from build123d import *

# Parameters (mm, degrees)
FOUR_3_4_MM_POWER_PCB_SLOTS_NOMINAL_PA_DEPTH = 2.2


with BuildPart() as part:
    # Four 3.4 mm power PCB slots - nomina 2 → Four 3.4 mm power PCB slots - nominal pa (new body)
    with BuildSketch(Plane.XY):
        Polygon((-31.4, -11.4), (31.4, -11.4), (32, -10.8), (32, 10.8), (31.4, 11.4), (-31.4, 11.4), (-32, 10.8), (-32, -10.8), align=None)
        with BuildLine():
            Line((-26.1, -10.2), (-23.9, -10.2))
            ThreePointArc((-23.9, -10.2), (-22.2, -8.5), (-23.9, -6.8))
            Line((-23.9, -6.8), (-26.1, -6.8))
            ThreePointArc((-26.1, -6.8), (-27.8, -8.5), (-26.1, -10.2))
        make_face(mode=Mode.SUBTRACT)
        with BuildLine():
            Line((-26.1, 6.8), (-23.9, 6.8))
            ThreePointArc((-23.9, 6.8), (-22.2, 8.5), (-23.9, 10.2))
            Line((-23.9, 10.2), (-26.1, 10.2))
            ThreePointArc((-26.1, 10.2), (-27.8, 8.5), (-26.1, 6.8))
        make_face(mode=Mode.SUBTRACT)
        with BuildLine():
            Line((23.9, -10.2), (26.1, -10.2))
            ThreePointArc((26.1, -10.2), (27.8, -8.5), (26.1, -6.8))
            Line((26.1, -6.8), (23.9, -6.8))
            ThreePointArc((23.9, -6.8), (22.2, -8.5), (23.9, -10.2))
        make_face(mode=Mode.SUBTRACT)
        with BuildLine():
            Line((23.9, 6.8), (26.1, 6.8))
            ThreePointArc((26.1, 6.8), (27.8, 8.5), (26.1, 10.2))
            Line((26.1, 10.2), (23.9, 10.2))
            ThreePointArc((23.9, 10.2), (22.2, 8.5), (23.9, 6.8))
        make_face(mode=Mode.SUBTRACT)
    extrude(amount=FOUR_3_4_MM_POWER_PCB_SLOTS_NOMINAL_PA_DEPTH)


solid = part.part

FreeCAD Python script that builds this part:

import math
import FreeCAD as App
import Part
import Sketcher

V = App.Vector


def add_polygon(sketch, points):
    """Adds a closed chain of lines whose ends are joined by coincident constraints."""
    first, n = sketch.GeometryCount, len(points)
    for a, b in zip(points, points[1:] + points[:1]):
        sketch.addGeometry(Part.LineSegment(App.Vector(*a, 0), App.Vector(*b, 0)), False)
    for i in range(n):
        sketch.addConstraint(Sketcher.Constraint("Coincident", first + i, 2, first + (i + 1) % n, 1))

doc = App.newDocument("Part")
body = doc.addObject("PartDesign::Body", "Body")

sketch1 = body.newObject("Sketcher::SketchObject", "Sketch")
sketch1.AttachmentSupport = (doc.getObject("XY_Plane"), [""])
sketch1.MapMode = "FlatFace"
add_polygon(sketch1, [(-31.4, -11.4), (31.4, -11.4), (32, -10.8), (32, 10.8), (31.4, 11.4), (-31.4, 11.4), (-32, 10.8), (-32, -10.8)])
sketch1.addGeometry(Part.LineSegment(V(-23.9, -10.2, 0), V(-26.1, -10.2, 0)), False)
sketch1.addGeometry(Part.ArcOfCircle(Part.Circle(V(-26.1, -8.5, 0), V(0, 0, 1), 1.7), math.radians(90), math.radians(270)), False)
sketch1.addGeometry(Part.LineSegment(V(-26.1, -6.8, 0), V(-23.9, -6.8, 0)), False)
sketch1.addGeometry(Part.ArcOfCircle(Part.Circle(V(-23.9, -8.5, 0), V(0, 0, 1), 1.7), math.radians(-90), math.radians(90)), False)
sketch1.addGeometry(Part.LineSegment(V(26.1, -10.2, 0), V(23.9, -10.2, 0)), False)
sketch1.addGeometry(Part.ArcOfCircle(Part.Circle(V(23.9, -8.5, 0), V(0, 0, 1), 1.7), math.radians(90), math.radians(270)), False)
sketch1.addGeometry(Part.LineSegment(V(23.9, -6.8, 0), V(26.1, -6.8, 0)), False)
sketch1.addGeometry(Part.ArcOfCircle(Part.Circle(V(26.1, -8.5, 0), V(0, 0, 1), 1.7), math.radians(-90), math.radians(90)), False)
sketch1.addGeometry(Part.LineSegment(V(-23.9, 6.8, 0), V(-26.1, 6.8, 0)), False)
sketch1.addGeometry(Part.ArcOfCircle(Part.Circle(V(-26.1, 8.5, 0), V(0, 0, 1), 1.7), math.radians(90), math.radians(270)), False)
sketch1.addGeometry(Part.LineSegment(V(-26.1, 10.2, 0), V(-23.9, 10.2, 0)), False)
sketch1.addGeometry(Part.ArcOfCircle(Part.Circle(V(-23.9, 8.5, 0), V(0, 0, 1), 1.7), math.radians(-90), math.radians(90)), False)
sketch1.addGeometry(Part.LineSegment(V(26.1, 6.8, 0), V(23.9, 6.8, 0)), False)
sketch1.addGeometry(Part.ArcOfCircle(Part.Circle(V(23.9, 8.5, 0), V(0, 0, 1), 1.7), math.radians(90), math.radians(270)), False)
sketch1.addGeometry(Part.LineSegment(V(23.9, 10.2, 0), V(26.1, 10.2, 0)), False)
sketch1.addGeometry(Part.ArcOfCircle(Part.Circle(V(26.1, 8.5, 0), V(0, 0, 1), 1.7), math.radians(-90), math.radians(90)), False)
sketch1.addConstraint(Sketcher.Constraint("Tangent", 8, 2, 9, 2))
sketch1.addConstraint(Sketcher.Constraint("Tangent", 9, 1, 10, 1))
sketch1.addConstraint(Sketcher.Constraint("Tangent", 10, 2, 11, 2))
sketch1.addConstraint(Sketcher.Constraint("Tangent", 11, 1, 8, 1))
sketch1.addConstraint(Sketcher.Constraint("Tangent", 12, 2, 13, 2))
sketch1.addConstraint(Sketcher.Constraint("Tangent", 13, 1, 14, 1))
sketch1.addConstraint(Sketcher.Constraint("Tangent", 14, 2, 15, 2))
sketch1.addConstraint(Sketcher.Constraint("Tangent", 15, 1, 12, 1))
sketch1.addConstraint(Sketcher.Constraint("Tangent", 16, 2, 17, 2))
sketch1.addConstraint(Sketcher.Constraint("Tangent", 17, 1, 18, 1))
sketch1.addConstraint(Sketcher.Constraint("Tangent", 18, 2, 19, 2))
sketch1.addConstraint(Sketcher.Constraint("Tangent", 19, 1, 16, 1))
sketch1.addConstraint(Sketcher.Constraint("Tangent", 20, 2, 21, 2))
sketch1.addConstraint(Sketcher.Constraint("Tangent", 21, 1, 22, 1))
sketch1.addConstraint(Sketcher.Constraint("Tangent", 22, 2, 23, 2))
sketch1.addConstraint(Sketcher.Constraint("Tangent", 23, 1, 20, 1))
sketch1.addConstraint(Sketcher.Constraint("Horizontal", 0))
sketch1.addConstraint(Sketcher.Constraint("Vertical", 2))
sketch1.addConstraint(Sketcher.Constraint("Horizontal", 4))
sketch1.addConstraint(Sketcher.Constraint("Vertical", 6))
sketch1.addConstraint(Sketcher.Constraint("Horizontal", 8))
sketch1.addConstraint(Sketcher.Constraint("Horizontal", 10))
sketch1.addConstraint(Sketcher.Constraint("Horizontal", 12))
sketch1.addConstraint(Sketcher.Constraint("Horizontal", 14))
sketch1.addConstraint(Sketcher.Constraint("Horizontal", 16))
sketch1.addConstraint(Sketcher.Constraint("Horizontal", 18))
sketch1.addConstraint(Sketcher.Constraint("Horizontal", 20))
sketch1.addConstraint(Sketcher.Constraint("Horizontal", 22))
sketch1.addConstraint(Sketcher.Constraint("Equal", 11, 13))
sketch1.addConstraint(Sketcher.Constraint("Equal", 15, 17))
sketch1.addConstraint(Sketcher.Constraint("Equal", 19, 21))
sketch1.addConstraint(Sketcher.Constraint("Symmetric", 15, 3, 17, 3, -1, 1))
sketch1.addConstraint(Sketcher.Constraint("Symmetric", 11, 3, 21, 3, -1, 1))
sketch1.addConstraint(Sketcher.Constraint("Symmetric", 0, 2, 4, 2, -1, 1))
sketch1.addConstraint(Sketcher.Constraint("Symmetric", 1, 2, 5, 2, -1, 1))
sketch1.addConstraint(Sketcher.Constraint("Symmetric", 11, 3, 13, 3, -2))
sketch1.addConstraint(Sketcher.Constraint("Perpendicular", 1, 3))
sketch1.addConstraint(Sketcher.Constraint("Perpendicular", 5, 7))
sketch1.addConstraint(Sketcher.Constraint("Horizontal", 2, 2, 5, 2))
sketch1.addConstraint(Sketcher.Constraint("Horizontal", 1, 2, 6, 2))
sketch1.addConstraint(Sketcher.Constraint("Vertical", 9, 3, 17, 3))
sketch1.addConstraint(Sketcher.Constraint("Vertical", 11, 3, 19, 3))
sketch1.addConstraint(Sketcher.Constraint("Vertical", 15, 3, 23, 3))
sketch1.addConstraint(Sketcher.Constraint("Vertical", 0, 2, 3, 2))
sketch1.addConstraint(Sketcher.Constraint("Radius", 9, 1.7))
sketch1.addConstraint(Sketcher.Constraint("DistanceX", 0, 1, 0, 2, 62.8))
sketch1.addConstraint(Sketcher.Constraint("DistanceX", 8, 2, 8, 1, 2.2))
sketch1.addConstraint(Sketcher.Constraint("DistanceY", 2, 1, 2, 2, 21.6))
sketch1.addConstraint(Sketcher.Constraint("DistanceX", -1, 1, 1, 2, 32.0))
sketch1.addConstraint(Sketcher.Constraint("DistanceX", 9, 3, 13, 3, 50.0))
sketch1.addConstraint(Sketcher.Constraint("DistanceY", 9, 3, 17, 3, 17.0))
pad1 = body.newObject("PartDesign::Pad", "Pad")
pad1.Profile = sketch1
pad1.Length = 2.2

doc.recompute()
